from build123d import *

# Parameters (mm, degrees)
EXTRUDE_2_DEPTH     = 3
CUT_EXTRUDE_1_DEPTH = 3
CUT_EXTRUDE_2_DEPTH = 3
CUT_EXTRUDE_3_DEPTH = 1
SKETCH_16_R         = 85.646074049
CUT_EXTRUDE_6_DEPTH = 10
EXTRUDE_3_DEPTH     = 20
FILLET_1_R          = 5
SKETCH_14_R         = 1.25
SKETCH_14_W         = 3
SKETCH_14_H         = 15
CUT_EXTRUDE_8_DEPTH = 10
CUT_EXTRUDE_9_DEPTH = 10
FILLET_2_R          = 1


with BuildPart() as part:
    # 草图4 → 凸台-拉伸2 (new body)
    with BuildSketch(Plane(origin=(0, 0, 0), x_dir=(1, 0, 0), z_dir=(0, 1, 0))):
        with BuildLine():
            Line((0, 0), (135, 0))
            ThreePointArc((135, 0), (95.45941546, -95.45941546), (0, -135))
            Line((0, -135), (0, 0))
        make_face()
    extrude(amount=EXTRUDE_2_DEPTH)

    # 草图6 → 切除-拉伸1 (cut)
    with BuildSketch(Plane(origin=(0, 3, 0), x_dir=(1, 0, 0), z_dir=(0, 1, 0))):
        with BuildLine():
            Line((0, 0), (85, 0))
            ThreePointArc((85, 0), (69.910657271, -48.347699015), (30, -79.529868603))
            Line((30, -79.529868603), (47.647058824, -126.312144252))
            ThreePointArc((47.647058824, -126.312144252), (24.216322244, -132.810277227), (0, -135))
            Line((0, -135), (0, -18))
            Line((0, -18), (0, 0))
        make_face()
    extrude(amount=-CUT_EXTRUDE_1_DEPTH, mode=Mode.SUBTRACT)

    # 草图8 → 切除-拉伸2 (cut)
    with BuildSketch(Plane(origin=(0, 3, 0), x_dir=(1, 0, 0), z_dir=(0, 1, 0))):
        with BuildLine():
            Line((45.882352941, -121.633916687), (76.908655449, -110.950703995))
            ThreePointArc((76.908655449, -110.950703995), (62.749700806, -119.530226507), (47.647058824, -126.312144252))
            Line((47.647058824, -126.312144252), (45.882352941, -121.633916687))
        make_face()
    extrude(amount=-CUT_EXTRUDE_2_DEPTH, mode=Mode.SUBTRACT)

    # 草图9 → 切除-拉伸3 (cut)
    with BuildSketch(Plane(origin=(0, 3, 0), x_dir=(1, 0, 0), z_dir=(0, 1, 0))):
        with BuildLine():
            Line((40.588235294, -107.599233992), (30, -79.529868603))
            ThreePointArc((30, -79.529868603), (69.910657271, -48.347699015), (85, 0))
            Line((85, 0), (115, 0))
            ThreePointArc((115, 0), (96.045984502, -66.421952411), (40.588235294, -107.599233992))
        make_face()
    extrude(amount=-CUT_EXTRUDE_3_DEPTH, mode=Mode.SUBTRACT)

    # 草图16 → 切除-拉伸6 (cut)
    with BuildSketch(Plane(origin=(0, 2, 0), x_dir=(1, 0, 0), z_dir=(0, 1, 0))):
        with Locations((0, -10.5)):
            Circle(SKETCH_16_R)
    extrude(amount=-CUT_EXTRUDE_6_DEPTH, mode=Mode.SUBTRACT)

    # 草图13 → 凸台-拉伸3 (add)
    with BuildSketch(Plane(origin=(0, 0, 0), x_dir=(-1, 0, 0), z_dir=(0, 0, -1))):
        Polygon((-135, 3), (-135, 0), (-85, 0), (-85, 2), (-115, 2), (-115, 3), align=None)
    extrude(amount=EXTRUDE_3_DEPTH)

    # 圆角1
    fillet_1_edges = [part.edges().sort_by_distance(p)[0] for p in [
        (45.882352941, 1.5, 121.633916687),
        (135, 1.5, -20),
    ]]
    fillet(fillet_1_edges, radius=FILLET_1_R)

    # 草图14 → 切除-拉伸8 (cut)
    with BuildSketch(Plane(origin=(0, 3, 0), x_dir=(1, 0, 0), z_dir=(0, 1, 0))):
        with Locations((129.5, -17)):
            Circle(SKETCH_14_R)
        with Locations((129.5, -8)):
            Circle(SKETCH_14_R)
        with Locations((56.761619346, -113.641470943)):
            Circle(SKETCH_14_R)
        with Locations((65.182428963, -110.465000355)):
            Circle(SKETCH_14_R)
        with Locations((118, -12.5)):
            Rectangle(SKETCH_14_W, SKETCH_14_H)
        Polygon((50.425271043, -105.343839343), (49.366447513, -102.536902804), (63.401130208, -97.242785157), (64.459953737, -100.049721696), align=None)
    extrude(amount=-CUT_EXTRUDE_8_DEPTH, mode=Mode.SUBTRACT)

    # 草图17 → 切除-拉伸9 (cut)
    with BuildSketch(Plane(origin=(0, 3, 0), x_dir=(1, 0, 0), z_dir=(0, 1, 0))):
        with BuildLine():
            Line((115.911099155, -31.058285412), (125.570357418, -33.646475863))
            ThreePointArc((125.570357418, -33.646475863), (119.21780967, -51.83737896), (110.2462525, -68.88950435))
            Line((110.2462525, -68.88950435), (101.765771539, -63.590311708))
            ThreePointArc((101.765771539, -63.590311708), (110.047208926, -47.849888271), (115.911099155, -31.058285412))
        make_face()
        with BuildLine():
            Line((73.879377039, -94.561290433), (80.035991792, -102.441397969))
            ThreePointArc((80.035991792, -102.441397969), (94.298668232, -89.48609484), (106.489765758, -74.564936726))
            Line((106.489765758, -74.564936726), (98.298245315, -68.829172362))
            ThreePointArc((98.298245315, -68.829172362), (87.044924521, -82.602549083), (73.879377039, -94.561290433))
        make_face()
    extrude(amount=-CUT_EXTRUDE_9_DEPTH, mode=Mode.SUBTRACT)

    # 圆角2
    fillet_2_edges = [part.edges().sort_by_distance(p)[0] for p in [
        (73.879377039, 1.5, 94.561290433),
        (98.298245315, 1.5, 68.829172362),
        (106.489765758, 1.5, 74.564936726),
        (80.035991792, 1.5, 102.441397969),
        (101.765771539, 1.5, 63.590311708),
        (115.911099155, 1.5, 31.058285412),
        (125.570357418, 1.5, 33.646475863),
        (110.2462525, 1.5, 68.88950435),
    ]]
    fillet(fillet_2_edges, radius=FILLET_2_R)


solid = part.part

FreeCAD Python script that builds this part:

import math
import FreeCAD as App
import Part
import Sketcher

V = App.Vector
Q = App.Units.Quantity


def edges_at(feature, points):
    """Names of the edges that pass closest to the given points."""
    edges = feature.Shape.Edges
    near = lambda p: min(range(len(edges)), key=lambda i: edges[i].distToShape(Part.Vertex(*p))[0])
    return sorted({f"Edge{near(p) + 1}" for p in points})

doc = App.newDocument("Part")
body = doc.addObject("PartDesign::Body", "Body")

# Sketch on XZ plane
sketch1 = doc.addObject("Sketcher::SketchObject", "Sketch")
body.addObject(sketch1)
sketch1.AttachmentSupport = (doc.XZ_Plane, [""])
sketch1.MapMode = "FlatFace"
sketch1.addGeometry([
    Part.LineSegment(V(135, 0, 0), V(0, 0, 0)),
    Part.LineSegment(V(0, 0, 0), V(0, 135, 0)),
    Part.ArcOfCircle(Part.Circle(V(0, 0, 0), V(0, 0, 1), 135), math.radians(0), math.radians(90)),
], False)
sketch1.addConstraint([
    Sketcher.Constraint("Coincident", 0, 2, 1, 1),
    Sketcher.Constraint("Coincident", 1, 2, 2, 2),
    Sketcher.Constraint("Coincident", 2, 1, 0, 1),
    Sketcher.Constraint("Horizontal", 0),
    Sketcher.Constraint("Vertical", 1),
    Sketcher.Constraint("Coincident", 2, 3, -1, 1),
    Sketcher.Constraint("Coincident", 0, 2, -1, 1),
    Sketcher.Constraint("Radius", 2, Q("135 mm")),
])
pad1 = doc.addObject("PartDesign::Pad", "Pad")
body.addObject(pad1)
pad1.Profile = sketch1
pad1.Length = 3
pad1.Reversed = True

# Sketch on XZ plane
sketch2 = doc.addObject("Sketcher::SketchObject", "Sketch001")
body.addObject(sketch2)
sketch2.AttachmentSupport = (doc.XZ_Plane, [""])
sketch2.MapMode = "FlatFace"
sketch2.AttachmentOffset = App.Placement(V(0, 0, -3), App.Rotation())
sketch2.addGeometry([
    Part.LineSegment(V(85, 0, 0), V(0, 0, 0)),  # 0
    Part.LineSegment(V(0, 0, 0), V(0, 135, 0)),  # 1
    Part.ArcOfCircle(Part.Circle(V(0, 0, 0), V(0, 0, 1), 135), math.radians(69), math.radians(90)),  # 2
    Part.LineSegment(V(48, 126, 0), V(30, 80, 0)),  # 3
    Part.ArcOfCircle(Part.Circle(V(0, 0, 0), V(0, 0, 1), 85), math.radians(0), math.radians(69)),  # 4
], False)
sketch2.addConstraint([
    Sketcher.Constraint("Coincident", 0, 2, 1, 1),
    Sketcher.Constraint("Coincident", 1, 2, 2, 2),
    Sketcher.Constraint("Coincident", 2, 1, 3, 1),
    Sketcher.Constraint("Coincident", 3, 2, 4, 2),
    Sketcher.Constraint("Coincident", 4, 1, 0, 1),
    Sketcher.Constraint("Horizontal", 0),
    Sketcher.Constraint("Vertical", 1),
    Sketcher.Constraint("Coincident", 2, 3, -1, 1),
    Sketcher.Constraint("Coincident", 4, 3, -1, 1),
    Sketcher.Constraint("Coincident", 0, 2, -1, 1),
    Sketcher.Constraint("Radius", 2, Q("135 mm")),
    Sketcher.Constraint("Radius", 4, Q("85 mm")),
    Sketcher.Constraint("DistanceX", -1, 1, 3, 2, Q("30 mm")),
    Sketcher.Constraint("DistanceX", -1, 1, 2, 1, Q("47.647059 mm")),
])
pocket1 = doc.addObject("PartDesign::Pocket", "Pocket")
body.addObject(pocket1)
pocket1.Profile = sketch2
pocket1.Length = 3
pocket1.Reversed = True

# Sketch on XZ plane
sketch3 = doc.addObject("Sketcher::SketchObject", "Sketch002")
body.addObject(sketch3)
sketch3.AttachmentSupport = (doc.XZ_Plane, [""])
sketch3.MapMode = "FlatFace"
sketch3.AttachmentOffset = App.Placement(V(0, 0, -3), App.Rotation())
sketch3.addGeometry([
    Part.LineSegment(V(77, 111, 0), V(46, 122, 0)),
    Part.LineSegment(V(46, 122, 0), V(48, 126, 0)),
    Part.ArcOfCircle(Part.Circle(V(0, 0, 0), V(0, 0, 1), 135), math.radians(55.27), math.radians(69.33)),
], False)
sketch3.addConstraint([
    Sketcher.Constraint("Coincident", 0, 2, 1, 1),
    Sketcher.Constraint("Coincident", 1, 2, 2, 2),
    Sketcher.Constraint("Coincident", 2, 1, 0, 1),
    Sketcher.Constraint("Coincident", 2, 3, -1, 1),
    Sketcher.Constraint("Radius", 2, Q("135 mm")),
    Sketcher.Constraint("Angle", 0, Q("161 deg")),
    Sketcher.Constraint("Distance", 1, Q("5 mm")),
    Sketcher.Constraint("Distance", 0, Q("32.814059 mm")),
    Sketcher.Constraint("DistanceX", -1, 1, 1, 2, Q("47.647059 mm")),
])
pocket2 = doc.addObject("PartDesign::Pocket", "Pocket001")
body.addObject(pocket2)
pocket2.Profile = sketch3
pocket2.Length = 3
pocket2.Reversed = True

# Sketch on XZ plane
sketch4 = doc.addObject("Sketcher::SketchObject", "Sketch003")
body.addObject(sketch4)
sketch4.AttachmentSupport = (doc.XZ_Plane, [""])
sketch4.MapMode = "FlatFace"
sketch4.AttachmentOffset = App.Placement(V(0, 0, -3), App.Rotation())
sketch4.addGeometry([
    Part.LineSegment(V(30, 80, 0), V(41, 108, 0)),
    Part.ArcOfCircle(Part.Circle(V(8, 5, 0), V(0, 0, 1), 108), math.radians(-3), math.radians(72)),
    Part.LineSegment(V(115, 0, 0), V(85, 0, 0)),
    Part.ArcOfCircle(Part.Circle(V(0, 0, 0), V(0, 0, 1), 85), math.radians(0), math.radians(69)),
], False)
sketch4.addConstraint([
    Sketcher.Constraint("Coincident", 0, 2, 1, 2),
    Sketcher.Constraint("Coincident", 1, 1, 2, 1),
    Sketcher.Constraint("Coincident", 2, 2, 3, 1),
    Sketcher.Constraint("Coincident", 3, 2, 0, 1),
    Sketcher.Constraint("Horizontal", 2),
    Sketcher.Constraint("Coincident", 3, 3, -1, 1),
    Sketcher.Constraint("PointOnObject", 1, 1, -1),
    Sketcher.Constraint("Radius", 3, Q("85 mm")),
    Sketcher.Constraint("Radius", 1, Q("107.5 mm")),
    Sketcher.Constraint("DistanceX", 2, 2, 2, 1, Q("30 mm")),
    Sketcher.Constraint("Distance", 0, Q("30 mm")),
    Sketcher.Constraint("DistanceX", -1, 1, 3, 2, Q("30 mm")),
    Sketcher.Constraint("DistanceY", 1, 3, 0, 2, Q("102.322901 mm")),
])
pocket3 = doc.addObject("PartDesign::Pocket", "Pocket002")
body.addObject(pocket3)
pocket3.Profile = sketch4
pocket3.Length = 1
pocket3.Reversed = True

# Sketch on XZ plane
sketch5 = doc.addObject("Sketcher::SketchObject", "Sketch004")
body.addObject(sketch5)
sketch5.AttachmentSupport = (doc.XZ_Plane, [""])
sketch5.MapMode = "FlatFace"
sketch5.AttachmentOffset = App.Placement(V(0, 0, -2), App.Rotation())
sketch5.addGeometry(Part.Circle(V(0, 10, 0), V(0, 0, 1), 86), False)
sketch5.addConstraint([
    Sketcher.Constraint("PointOnObject", 0, 3, -2),
    Sketcher.Constraint("DistanceY", -1, 1, 0, 3, Q("10.5 mm")),
    Sketcher.Constraint("Diameter", 0, Q("171.292148 mm")),
])
pocket4 = doc.addObject("PartDesign::Pocket", "Pocket003")
body.addObject(pocket4)
pocket4.Profile = sketch5
pocket4.Length = 10
pocket4.Reversed = True

# Sketch on XY plane
sketch6 = doc.addObject("Sketcher::SketchObject", "Sketch005")
body.addObject(sketch6)
sketch6.AttachmentSupport = (doc.XY_Plane, [""])
sketch6.MapMode = "FlatFace"
sketch6.addGeometry([
    Part.LineSegment(V(135, 3, 0), V(135, 0, 0)),  # 0
    Part.LineSegment(V(135, 0, 0), V(85, 0, 0)),  # 1
    Part.LineSegment(V(85, 0, 0), V(85, 2, 0)),  # 2
    Part.LineSegment(V(85, 2, 0), V(115, 2, 0)),  # 3
    Part.LineSegment(V(115, 2, 0), V(115, 3, 0)),  # 4
    Part.LineSegment(V(115, 3, 0), V(135, 3, 0)),  # 5
], False)
sketch6.addConstraint([
    Sketcher.Constraint("Coincident", 0, 2, 1, 1),
    Sketcher.Constraint("Coincident", 1, 2, 2, 1),
    Sketcher.Constraint("Coincident", 2, 2, 3, 1),
    Sketcher.Constraint("Coincident", 3, 2, 4, 1),
    Sketcher.Constraint("Coincident", 4, 2, 5, 1),
    Sketcher.Constraint("Coincident", 5, 2, 0, 1),
    Sketcher.Constraint("Vertical", 0),
    Sketcher.Constraint("Horizontal", 1),
    Sketcher.Constraint("Vertical", 2),
    Sketcher.Constraint("Horizontal", 3),
    Sketcher.Constraint("Vertical", 4),
    Sketcher.Constraint("Horizontal", 5),
    Sketcher.Constraint("PointOnObject", 0, 2, -1),
    Sketcher.Constraint("DistanceX", 1, 2, 1, 1, Q("50 mm")),
    Sketcher.Constraint("DistanceX", 3, 1, 3, 2, Q("30 mm")),
    Sketcher.Constraint("DistanceY", 0, 2, 0, 1, Q("3 mm")),
    Sketcher.Constraint("DistanceY", 2, 1, 2, 2, Q("2 mm")),
    Sketcher.Constraint("DistanceX", -1, 1, 0, 2, Q("135 mm")),
])
pad2 = doc.addObject("PartDesign::Pad", "Pad001")
body.addObject(pad2)
pad2.Profile = sketch6
pad2.Length = 20
pad2.Reversed = True
doc.recompute()

fillet = doc.addObject("PartDesign::Fillet", "Fillet")
body.addObject(fillet)
fillet.Base = (pad2, edges_at(pad2, [(45.882, 1.5, 121.634), (135, 1.5, -20)]))
fillet.Radius = 5

# Sketch on XZ plane
sketch7 = doc.addObject("Sketcher::SketchObject", "Sketch006")
body.addObject(sketch7)
sketch7.AttachmentSupport = (doc.XZ_Plane, [""])
sketch7.MapMode = "FlatFace"
sketch7.AttachmentOffset = App.Placement(V(0, 0, -3), App.Rotation())
sketch7.addGeometry([
    Part.Circle(V(129.5, 17, 0), V(0, 0, 1), 1.2),  # 0
    Part.Circle(V(129.5, 8, 0), V(0, 0, 1), 1.2),  # 1
    Part.Circle(V(56.8, 113.6, 0), V(0, 0, 1), 1.2),  # 2
    Part.Circle(V(65.2, 110.5, 0), V(0, 0, 1), 1.2),  # 3
    Part.LineSegment(V(116.5, 5, 0), V(116.5, 20, 0)),  # 4
    Part.LineSegment(V(116.5, 20, 0), V(119.5, 20, 0)),  # 5
    Part.LineSegment(V(119.5, 20, 0), V(119.5, 5, 0)),  # 6
    Part.LineSegment(V(119.5, 5, 0), V(116.5, 5, 0)),  # 7
    Part.LineSegment(V(49.4, 102.5, 0), V(50.4, 105.3, 0)),  # 8
    Part.LineSegment(V(50.4, 105.3, 0), V(64.5, 100, 0)),  # 9
    Part.LineSegment(V(64.5, 100, 0), V(63.4, 97.2, 0)),  # 10
    Part.LineSegment(V(63.4, 97.2, 0), V(49.4, 102.5, 0)),  # 11
], False)
sketch7.addConstraint([
    Sketcher.Constraint("Coincident", 4, 2, 5, 1),
    Sketcher.Constraint("Coincident", 5, 2, 6, 1),
    Sketcher.Constraint("Coincident", 6, 2, 7, 1),
    Sketcher.Constraint("Coincident", 7, 2, 4, 1),
    Sketcher.Constraint("Coincident", 8, 2, 9, 1),
    Sketcher.Constraint("Coincident", 9, 2, 10, 1),
    Sketcher.Constraint("Coincident", 10, 2, 11, 1),
    Sketcher.Constraint("Coincident", 11, 2, 8, 1),
    Sketcher.Constraint("Vertical", 4),
    Sketcher.Constraint("Horizontal", 5),
    Sketcher.Constraint("Vertical", 6),
    Sketcher.Constraint("Horizontal", 7),
    Sketcher.Constraint("Equal", 0, 1),
    Sketcher.Constraint("Equal", 1, 2),
    Sketcher.Constraint("Equal", 2, 3),
    Sketcher.Constraint("Perpendicular", 8, 9),
    Sketcher.Constraint("Perpendicular", 9, 10),
    Sketcher.Constraint("Perpendicular", 10, 11),
    Sketcher.Constraint("Vertical", 0, 3, 1, 3),
    Sketcher.Constraint("Diameter", 0, Q("2.5 mm")),
    Sketcher.Constraint("DistanceX", 5, 1, 5, 2, Q("3 mm")),
    Sketcher.Constraint("DistanceY", 4, 1, 4, 2, Q("15 mm")),
    Sketcher.Constraint("Distance", 8, Q("3 mm")),
    Sketcher.Constraint("Distance", 9, Q("15 mm")),
    Sketcher.Constraint("DistanceY", -1, 1, 0, 3, Q("17 mm")),
    Sketcher.Constraint("DistanceY", -1, 1, 1, 3, Q("8 mm")),
    Sketcher.Constraint("DistanceY", -1, 1, 4, 2, Q("20 mm")),
    Sketcher.Constraint("DistanceX", 4, 2, 0, 3, Q("13 mm")),
    Sketcher.Constraint("DistanceX", -1, 1, 0, 3, Q("129.5 mm")),
    Sketcher.Constraint("DistanceY", -1, 1, 3, 3, Q("110.465 mm")),
    Sketcher.Constraint("DistanceX", 10, 2, 3, 3, Q("1.781299 mm")),
    Sketcher.Constraint("DistanceX", -1, 1, 2, 3, Q("56.761619 mm")),
    Sketcher.Constraint("DistanceY", -1, 1, 2, 3, Q("113.641471 mm")),
    Sketcher.Constraint("DistanceX", -1, 1, 3, 3, Q("65.182429 mm")),
    Sketcher.Constraint("DistanceX", -1, 1, 8, 2, Q("50.425271 mm")),
    Sketcher.Constraint("DistanceY", -1, 1, 8, 2, Q("105.343839 mm")),
])
pocket5 = doc.addObject("PartDesign::Pocket", "Pocket004")
body.addObject(pocket5)
pocket5.Profile = sketch7
pocket5.Length = 10
pocket5.Reversed = True

# Sketch on XZ plane
sketch8 = doc.addObject("Sketcher::SketchObject", "Sketch007")
body.addObject(sketch8)
sketch8.AttachmentSupport = (doc.XZ_Plane, [""])
sketch8.MapMode = "FlatFace"
sketch8.AttachmentOffset = App.Placement(V(0, 0, -3), App.Rotation())
sketch8.addGeometry([
    Part.LineSegment(V(126, 34, 0), V(116, 31, 0)),  # 0
    Part.ArcOfCircle(Part.Circle(V(0, 0, 0), V(0, 0, 1), 120), math.radians(15), math.radians(32)),  # 1
    Part.LineSegment(V(102, 64, 0), V(110, 69, 0)),  # 2
    Part.ArcOfCircle(Part.Circle(V(0, 0, 0), V(0, 0, 1), 130), math.radians(15), math.radians(32)),  # 3
    Part.LineSegment(V(74, 95, 0), V(80, 102, 0)),  # 4
    Part.ArcOfCircle(Part.Circle(V(0, 0, 0), V(0, 0, 1), 130), math.radians(35), math.radians(52)),  # 5
    Part.LineSegment(V(106, 75, 0), V(98, 69, 0)),  # 6
    Part.ArcOfCircle(Part.Circle(V(0, 0, 0), V(0, 0, 1), 120), math.radians(35), math.radians(52)),  # 7
], False)
sketch8.addConstraint([
    Sketcher.Constraint("Coincident", 0, 2, 1, 1),
    Sketcher.Constraint("Coincident", 1, 2, 2, 1),
    Sketcher.Constraint("Coincident", 2, 2, 3, 2),
    Sketcher.Constraint("Coincident", 3, 1, 0, 1),
    Sketcher.Constraint("Coincident", 4, 2, 5, 2),
    Sketcher.Constraint("Coincident", 5, 1, 6, 1),
    Sketcher.Constraint("Coincident", 6, 2, 7, 1),
    Sketcher.Constraint("Coincident", 7, 2, 4, 1),
    Sketcher.Constraint("Coincident", 1, 3, -1, 1),
    Sketcher.Constraint("Coincident", 3, 3, -1, 1),
    Sketcher.Constraint("Coincident", 5, 3, -1, 1),
    Sketcher.Constraint("Coincident", 7, 3, -1, 1),
    Sketcher.Constraint("Equal", 3, 5),
    Sketcher.Constraint("Equal", 1, 7),
    Sketcher.Constraint("Radius", 1, Q("120 mm")),
    Sketcher.Constraint("Radius", 3, Q("130 mm")),
    Sketcher.Constraint("Angle", 0, Q("-165 deg")),
    Sketcher.Constraint("Angle", 2, Q("32 deg")),
    Sketcher.Constraint("Angle", 4, Q("52 deg")),
    Sketcher.Constraint("Angle", 6, Q("-145 deg")),
    Sketcher.Constraint("DistanceX", -1, 1, 0, 2, Q("115.911099 mm")),
    Sketcher.Constraint("DistanceX", -1, 1, 1, 2, Q("101.765772 mm")),
    Sketcher.Constraint("DistanceX", -1, 1, 4, 2, Q("80.035992 mm")),
    Sketcher.Constraint("DistanceY", 5, 1, 4, 2, Q("27.876461 mm")),
])
pocket6 = doc.addObject("PartDesign::Pocket", "Pocket005")
body.addObject(pocket6)
pocket6.Profile = sketch8
pocket6.Length = 10
pocket6.Reversed = True
doc.recompute()

fillet2 = doc.addObject("PartDesign::Fillet", "Fillet001")
body.addObject(fillet2)
fillet2.Base = (pocket6, edges_at(pocket6, [
    (73.879, 1.5, 94.561),
    (98.298, 1.5, 68.829),
    (106.49, 1.5, 74.565),
    (80.036, 1.5, 102.441),
    (101.766, 1.5, 63.59),
    (115.911, 1.5, 31.058),
    (125.57, 1.5, 33.646),
    (110.246, 1.5, 68.89),
]))
fillet2.Radius = 1

doc.recompute()
